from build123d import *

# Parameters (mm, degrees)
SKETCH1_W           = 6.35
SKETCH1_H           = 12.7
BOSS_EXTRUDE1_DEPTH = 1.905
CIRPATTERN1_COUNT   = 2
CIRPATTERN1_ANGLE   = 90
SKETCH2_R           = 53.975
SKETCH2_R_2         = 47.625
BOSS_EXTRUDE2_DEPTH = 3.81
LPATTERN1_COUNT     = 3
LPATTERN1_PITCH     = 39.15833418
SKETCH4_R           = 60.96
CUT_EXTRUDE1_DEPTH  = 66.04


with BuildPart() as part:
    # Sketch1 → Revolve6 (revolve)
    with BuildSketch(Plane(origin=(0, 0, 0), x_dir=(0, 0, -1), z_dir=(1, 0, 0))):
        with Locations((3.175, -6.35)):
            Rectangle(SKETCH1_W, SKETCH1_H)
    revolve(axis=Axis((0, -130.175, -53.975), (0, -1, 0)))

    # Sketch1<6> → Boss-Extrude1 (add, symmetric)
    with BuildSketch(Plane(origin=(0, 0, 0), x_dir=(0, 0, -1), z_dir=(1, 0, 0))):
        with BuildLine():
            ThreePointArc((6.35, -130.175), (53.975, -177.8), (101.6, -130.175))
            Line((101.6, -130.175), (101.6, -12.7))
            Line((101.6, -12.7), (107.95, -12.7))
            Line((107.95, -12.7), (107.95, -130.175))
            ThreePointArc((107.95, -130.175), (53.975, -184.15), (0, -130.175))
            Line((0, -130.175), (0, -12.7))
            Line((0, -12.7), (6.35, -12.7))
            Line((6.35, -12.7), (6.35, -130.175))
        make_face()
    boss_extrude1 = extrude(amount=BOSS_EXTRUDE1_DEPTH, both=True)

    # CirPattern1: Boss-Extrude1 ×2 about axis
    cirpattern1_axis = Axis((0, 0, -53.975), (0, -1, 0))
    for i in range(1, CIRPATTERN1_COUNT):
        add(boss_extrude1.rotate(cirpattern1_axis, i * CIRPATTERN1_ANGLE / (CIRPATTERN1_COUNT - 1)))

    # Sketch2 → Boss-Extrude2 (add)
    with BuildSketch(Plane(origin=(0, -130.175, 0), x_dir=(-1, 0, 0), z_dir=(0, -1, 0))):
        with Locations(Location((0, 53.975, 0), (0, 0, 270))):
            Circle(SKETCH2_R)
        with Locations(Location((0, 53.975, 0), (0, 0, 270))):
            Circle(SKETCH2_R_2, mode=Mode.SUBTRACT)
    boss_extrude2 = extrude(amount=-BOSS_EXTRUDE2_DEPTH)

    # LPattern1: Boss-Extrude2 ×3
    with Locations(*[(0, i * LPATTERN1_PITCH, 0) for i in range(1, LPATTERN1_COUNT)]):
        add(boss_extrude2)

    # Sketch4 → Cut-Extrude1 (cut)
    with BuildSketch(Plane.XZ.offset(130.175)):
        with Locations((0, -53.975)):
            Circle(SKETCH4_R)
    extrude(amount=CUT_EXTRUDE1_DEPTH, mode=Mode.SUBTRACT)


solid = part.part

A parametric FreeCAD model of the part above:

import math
import FreeCAD as App
import Part
import Sketcher
Q = App.Units.Quantity

doc = App.newDocument("Part")
body = doc.addObject("PartDesign::Body", "Body")

sketch1 = body.newObject("Sketcher::SketchObject", "Sketch")
sketch1.AttachmentSupport = (doc.getObject("YZ_Plane"), [""])
sketch1.MapMode = "FlatFace"
sketch1.addGeometry([
    Part.LineSegment(App.Vector(0, 0, 0), App.Vector(-13, 0, 0)),
    Part.LineSegment(App.Vector(-13, 0, 0), App.Vector(-13, -6, 0)),
    Part.LineSegment(App.Vector(-13, -6, 0), App.Vector(0, -6, 0)),
    Part.LineSegment(App.Vector(0, -6, 0), App.Vector(0, 0, 0)),
], False)
sketch1.addGeometry(Part.LineSegment(App.Vector(0, -54, 0), App.Vector(-13, -54, 0)), True)
sketch1.addConstraint([
    Sketcher.Constraint("Coincident", 0, 2, 1, 1),
    Sketcher.Constraint("Coincident", 1, 2, 2, 1),
    Sketcher.Constraint("Coincident", 2, 2, 3, 1),
    Sketcher.Constraint("Coincident", 3, 2, 0, 1),
    Sketcher.Constraint("Horizontal", 0),
    Sketcher.Constraint("Vertical", 1),
    Sketcher.Constraint("Horizontal", 2),
    Sketcher.Constraint("Vertical", 3),
    Sketcher.Constraint("Horizontal", 4),
    Sketcher.Constraint("Coincident", 3, 2, -1, 1),
    Sketcher.Constraint("PointOnObject", 4, 1, -2),
    Sketcher.Constraint("Vertical", 1, 2, 4, 2),
    Sketcher.Constraint("DistanceX", 0, 2, 0, 1, Q("0.5 in")),
    Sketcher.Constraint("DistanceY", 1, 2, 1, 1, Q("0.25 in")),
    Sketcher.Constraint("DistanceY", 4, 1, -1, 1, Q("2.125 in")),
])
revolution = body.newObject("PartDesign::Revolution", "Revolution")
revolution.Profile = sketch1
revolution.ReferenceAxis = (sketch1, ["Axis0"])
revolution.Angle = 360

sketch2 = body.newObject("Sketcher::SketchObject", "Sketch001")
sketch2.AttachmentSupport = (doc.getObject("YZ_Plane"), [""])
sketch2.MapMode = "FlatFace"
sketch2.addGeometry([
    Part.ArcOfCircle(Part.Circle(App.Vector(-130, -54, 0), App.Vector(0, 0, 1), 48), math.radians(90), math.radians(270)),
    Part.LineSegment(App.Vector(-130, -6, 0), App.Vector(-13, -6, 0)),
    Part.LineSegment(App.Vector(-13, -6, 0), App.Vector(-13, 0, 0)),
    Part.LineSegment(App.Vector(-13, 0, 0), App.Vector(-130, 0, 0)),
    Part.ArcOfCircle(Part.Circle(App.Vector(-130, -54, 0), App.Vector(0, 0, 1), 54), math.radians(90), math.radians(270)),
    Part.LineSegment(App.Vector(-130, -108, 0), App.Vector(-13, -108, 0)),
    Part.LineSegment(App.Vector(-13, -108, 0), App.Vector(-13, -102, 0)),
    Part.LineSegment(App.Vector(-13, -102, 0), App.Vector(-130, -102, 0)),
], False)
sketch2.addConstraint([
    Sketcher.Constraint("Tangent", 0, 1, 1, 1),
    Sketcher.Constraint("Coincident", 1, 2, 2, 1),
    Sketcher.Constraint("Coincident", 2, 2, 3, 1),
    Sketcher.Constraint("Tangent", 3, 2, 4, 1),
    Sketcher.Constraint("Tangent", 4, 2, 5, 1),
    Sketcher.Constraint("Coincident", 5, 2, 6, 1),
    Sketcher.Constraint("Coincident", 6, 2, 7, 1),
    Sketcher.Constraint("Tangent", 7, 2, 0, 2),
    Sketcher.Constraint("Horizontal", 1),
    Sketcher.Constraint("Vertical", 2),
    Sketcher.Constraint("Horizontal", 3),
    Sketcher.Constraint("Horizontal", 5),
    Sketcher.Constraint("Vertical", 6),
    Sketcher.Constraint("Horizontal", 7),
    Sketcher.Constraint("Coincident", 4, 3, 0, 3),
    Sketcher.Constraint("PointOnObject", 2, 2, -1),
    Sketcher.Constraint("Vertical", 2, 2, 5, 2),
    Sketcher.Constraint("DistanceY", 6, 2, -1, 1, Q("4 in")),
    Sketcher.Constraint("Radius", 0, Q("1.875 in")),
    Sketcher.Constraint("DistanceX", 1, 2, -1, 1, Q("0.5 in")),
    Sketcher.Constraint("DistanceX", 1, 1, 1, 2, Q("4.625 in")),
])
pad1 = body.newObject("PartDesign::Pad", "Pad")
pad1.Profile = sketch2
pad1.Length = Q("0.15 in")
pad1.Midplane = True
doc.recompute()

datumline = body.newObject("PartDesign::Line", "DatumLine")
datumline.Placement = App.Placement(App.Vector(0, 0, -53.975), App.Rotation(App.Vector(0, 0, 1), App.Vector(0, -1, 0)))
polarpattern = body.newObject("PartDesign::PolarPattern", "PolarPattern")
polarpattern.Originals = [pad1]
polarpattern.Axis = (datumline, [""])
polarpattern.Angle = 90
polarpattern.Occurrences = 2
body.Tip = polarpattern

sketch3 = body.newObject("Sketcher::SketchObject", "Sketch002")
sketch3.AttachmentSupport = (doc.getObject("XZ_Plane"), [""])
sketch3.MapMode = "FlatFace"
sketch3.AttachmentOffset = App.Placement(App.Vector(0, 0, 5.125 * 25.4), App.Rotation())
sketch3.addGeometry([
    Part.Circle(App.Vector(0, -54, 0), App.Vector(0, 0, 1), 54),
    Part.Circle(App.Vector(0, -54, 0), App.Vector(0, 0, 1), 48),
], False)
sketch3.addConstraint([
    Sketcher.Constraint("Coincident", 1, 3, 0, 3),
    Sketcher.Constraint("PointOnObject", 0, 3, -2),
    Sketcher.Constraint("Diameter", 0, Q("4.25 in")),
    Sketcher.Constraint("Diameter", 1, Q("3.75 in")),
    Sketcher.Constraint("DistanceY", 0, 3, -1, 1, Q("2.125 in")),
])
pad2 = body.newObject("PartDesign::Pad", "Pad001")
pad2.Profile = sketch3
pad2.Length = Q("0.15 in")
pad2.Reversed = True
doc.recompute()

linearpattern = body.newObject("PartDesign::LinearPattern", "LinearPattern")
linearpattern.Originals = [pad2]
linearpattern.Direction = (doc.getObject("Y_Axis"), [""])
linearpattern.Mode = "offset"
linearpattern.Offset = 39.158334
linearpattern.Occurrences = 3
body.Tip = linearpattern

sketch4 = body.newObject("Sketcher::SketchObject", "Sketch003")
sketch4.AttachmentSupport = (doc.getObject("XZ_Plane"), [""])
sketch4.MapMode = "FlatFace"
sketch4.AttachmentOffset = App.Placement(App.Vector(0, 0, 5.125 * 25.4), App.Rotation())
sketch4.addGeometry(Part.Circle(App.Vector(0, -54, 0), App.Vector(0, 0, 1), 61), False)
sketch4.addConstraint([
    Sketcher.Constraint("PointOnObject", 0, 3, -2),
    Sketcher.Constraint("Diameter", 0, Q("4.8 in")),
    Sketcher.Constraint("DistanceY", 0, 3, -1, 1, Q("2.125 in")),
])
pocket1 = body.newObject("PartDesign::Pocket", "Pocket")
pocket1.Profile = sketch4
pocket1.Length = Q("2.6 in")
pocket1.Reversed = True

doc.recompute()
